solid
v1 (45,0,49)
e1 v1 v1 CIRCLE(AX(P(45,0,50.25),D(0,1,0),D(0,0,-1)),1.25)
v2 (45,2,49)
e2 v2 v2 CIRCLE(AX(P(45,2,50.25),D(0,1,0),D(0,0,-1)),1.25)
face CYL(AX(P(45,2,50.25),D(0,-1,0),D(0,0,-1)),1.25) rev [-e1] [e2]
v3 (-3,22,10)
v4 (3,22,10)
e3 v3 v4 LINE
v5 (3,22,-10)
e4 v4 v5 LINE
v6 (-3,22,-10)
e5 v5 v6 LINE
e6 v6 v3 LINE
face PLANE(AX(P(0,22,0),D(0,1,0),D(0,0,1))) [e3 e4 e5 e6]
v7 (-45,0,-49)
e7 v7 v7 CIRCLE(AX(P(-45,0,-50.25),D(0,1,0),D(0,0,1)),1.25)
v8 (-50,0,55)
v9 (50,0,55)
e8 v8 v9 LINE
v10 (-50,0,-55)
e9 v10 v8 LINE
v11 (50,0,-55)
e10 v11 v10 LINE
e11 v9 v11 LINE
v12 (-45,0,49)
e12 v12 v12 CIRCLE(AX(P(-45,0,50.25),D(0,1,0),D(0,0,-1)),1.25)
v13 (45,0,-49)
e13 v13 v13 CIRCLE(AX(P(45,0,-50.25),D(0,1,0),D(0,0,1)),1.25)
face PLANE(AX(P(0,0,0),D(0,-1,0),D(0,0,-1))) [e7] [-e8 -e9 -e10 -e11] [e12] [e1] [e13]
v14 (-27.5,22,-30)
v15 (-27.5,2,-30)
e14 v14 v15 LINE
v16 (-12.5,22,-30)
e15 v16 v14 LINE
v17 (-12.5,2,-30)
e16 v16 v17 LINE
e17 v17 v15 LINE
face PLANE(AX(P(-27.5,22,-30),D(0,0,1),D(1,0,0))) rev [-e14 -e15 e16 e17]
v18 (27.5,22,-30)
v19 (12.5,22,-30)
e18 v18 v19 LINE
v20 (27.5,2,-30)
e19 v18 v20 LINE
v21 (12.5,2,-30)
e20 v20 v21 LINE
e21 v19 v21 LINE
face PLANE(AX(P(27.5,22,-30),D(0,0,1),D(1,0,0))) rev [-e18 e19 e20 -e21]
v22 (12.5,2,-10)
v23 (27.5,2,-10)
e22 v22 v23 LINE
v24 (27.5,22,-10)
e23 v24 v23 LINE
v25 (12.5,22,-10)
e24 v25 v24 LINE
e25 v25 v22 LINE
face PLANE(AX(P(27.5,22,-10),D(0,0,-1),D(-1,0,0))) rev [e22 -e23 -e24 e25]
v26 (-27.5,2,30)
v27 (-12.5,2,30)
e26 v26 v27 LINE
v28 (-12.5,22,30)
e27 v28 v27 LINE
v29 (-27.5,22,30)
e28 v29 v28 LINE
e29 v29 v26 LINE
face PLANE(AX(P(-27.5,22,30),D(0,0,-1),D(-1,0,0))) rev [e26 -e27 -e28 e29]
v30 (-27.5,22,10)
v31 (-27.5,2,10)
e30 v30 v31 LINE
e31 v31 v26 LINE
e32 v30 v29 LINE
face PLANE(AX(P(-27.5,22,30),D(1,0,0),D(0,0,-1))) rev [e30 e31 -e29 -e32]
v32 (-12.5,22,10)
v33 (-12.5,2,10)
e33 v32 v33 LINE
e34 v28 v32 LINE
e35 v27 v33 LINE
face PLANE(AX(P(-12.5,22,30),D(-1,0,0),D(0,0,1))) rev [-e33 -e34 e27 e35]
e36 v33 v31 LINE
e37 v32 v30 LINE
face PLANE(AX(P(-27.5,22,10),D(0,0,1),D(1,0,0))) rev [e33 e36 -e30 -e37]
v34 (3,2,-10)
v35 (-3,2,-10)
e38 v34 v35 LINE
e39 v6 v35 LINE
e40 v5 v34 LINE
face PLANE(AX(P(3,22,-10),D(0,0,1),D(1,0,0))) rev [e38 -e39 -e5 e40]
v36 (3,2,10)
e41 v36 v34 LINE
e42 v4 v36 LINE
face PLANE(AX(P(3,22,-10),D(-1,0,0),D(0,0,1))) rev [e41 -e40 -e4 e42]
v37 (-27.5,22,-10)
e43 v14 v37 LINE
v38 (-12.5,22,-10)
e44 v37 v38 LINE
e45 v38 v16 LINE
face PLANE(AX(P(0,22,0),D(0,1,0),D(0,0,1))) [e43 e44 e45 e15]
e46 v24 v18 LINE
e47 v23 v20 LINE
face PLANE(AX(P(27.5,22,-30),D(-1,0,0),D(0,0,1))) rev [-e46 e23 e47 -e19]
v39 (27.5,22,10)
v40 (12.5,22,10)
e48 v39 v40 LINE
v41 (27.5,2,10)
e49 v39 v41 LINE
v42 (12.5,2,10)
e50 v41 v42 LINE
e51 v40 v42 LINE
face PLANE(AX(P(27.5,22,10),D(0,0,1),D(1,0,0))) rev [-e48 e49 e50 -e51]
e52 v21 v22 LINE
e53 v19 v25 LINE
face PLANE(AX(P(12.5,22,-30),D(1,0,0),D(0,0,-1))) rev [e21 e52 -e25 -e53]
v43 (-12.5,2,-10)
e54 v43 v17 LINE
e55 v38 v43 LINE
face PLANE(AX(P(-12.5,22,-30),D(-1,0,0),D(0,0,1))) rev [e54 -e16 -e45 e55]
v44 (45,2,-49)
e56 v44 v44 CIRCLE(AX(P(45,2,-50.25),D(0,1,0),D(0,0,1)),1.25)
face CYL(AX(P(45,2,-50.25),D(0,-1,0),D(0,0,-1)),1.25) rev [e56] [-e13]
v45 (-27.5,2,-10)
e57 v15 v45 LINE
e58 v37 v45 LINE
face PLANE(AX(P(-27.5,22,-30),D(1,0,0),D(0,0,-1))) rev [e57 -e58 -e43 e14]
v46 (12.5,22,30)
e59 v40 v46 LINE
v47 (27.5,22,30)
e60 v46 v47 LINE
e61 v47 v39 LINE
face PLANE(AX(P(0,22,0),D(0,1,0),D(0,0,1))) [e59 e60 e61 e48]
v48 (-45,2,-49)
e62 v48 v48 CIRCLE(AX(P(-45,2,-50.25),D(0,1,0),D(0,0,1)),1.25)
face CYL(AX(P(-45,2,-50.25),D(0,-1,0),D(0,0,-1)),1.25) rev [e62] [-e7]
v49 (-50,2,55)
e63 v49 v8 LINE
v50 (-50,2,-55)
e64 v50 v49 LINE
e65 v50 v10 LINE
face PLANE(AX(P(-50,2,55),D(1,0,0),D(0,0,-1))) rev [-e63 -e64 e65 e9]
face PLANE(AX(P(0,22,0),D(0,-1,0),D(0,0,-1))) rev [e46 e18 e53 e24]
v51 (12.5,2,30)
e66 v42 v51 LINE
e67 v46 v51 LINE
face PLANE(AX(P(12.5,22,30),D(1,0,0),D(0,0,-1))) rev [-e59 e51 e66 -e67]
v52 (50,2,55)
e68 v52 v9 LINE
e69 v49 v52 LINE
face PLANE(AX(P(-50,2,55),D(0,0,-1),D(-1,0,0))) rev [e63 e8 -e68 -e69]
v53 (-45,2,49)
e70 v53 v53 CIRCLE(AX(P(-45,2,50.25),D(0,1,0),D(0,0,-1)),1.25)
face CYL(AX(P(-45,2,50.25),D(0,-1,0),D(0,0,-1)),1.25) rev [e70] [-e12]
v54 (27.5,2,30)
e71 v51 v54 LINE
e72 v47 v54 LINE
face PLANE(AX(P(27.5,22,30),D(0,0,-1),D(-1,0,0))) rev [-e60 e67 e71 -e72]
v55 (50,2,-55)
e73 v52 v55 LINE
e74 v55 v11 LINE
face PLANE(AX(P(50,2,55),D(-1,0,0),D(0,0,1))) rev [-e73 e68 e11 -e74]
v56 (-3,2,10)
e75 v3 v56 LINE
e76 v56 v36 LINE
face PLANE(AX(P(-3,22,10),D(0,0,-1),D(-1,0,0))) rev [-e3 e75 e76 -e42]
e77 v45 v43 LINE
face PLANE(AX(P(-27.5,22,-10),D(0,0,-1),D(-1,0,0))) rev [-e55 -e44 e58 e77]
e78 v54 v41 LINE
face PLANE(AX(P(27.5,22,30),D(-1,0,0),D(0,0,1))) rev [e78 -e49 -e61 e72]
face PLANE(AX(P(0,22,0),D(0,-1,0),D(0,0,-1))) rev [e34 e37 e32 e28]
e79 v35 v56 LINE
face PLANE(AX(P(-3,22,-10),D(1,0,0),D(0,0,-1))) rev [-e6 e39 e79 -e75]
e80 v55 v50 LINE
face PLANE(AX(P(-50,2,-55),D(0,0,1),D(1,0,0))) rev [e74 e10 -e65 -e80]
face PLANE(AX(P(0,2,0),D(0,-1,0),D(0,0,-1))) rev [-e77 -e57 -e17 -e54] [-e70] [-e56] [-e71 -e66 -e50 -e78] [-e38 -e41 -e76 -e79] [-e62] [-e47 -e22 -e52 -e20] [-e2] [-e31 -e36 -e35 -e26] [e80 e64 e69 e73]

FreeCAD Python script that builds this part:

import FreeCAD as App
import Part
import Sketcher

doc = App.newDocument("Part")
body = doc.addObject("PartDesign::Body", "Body")

sketch1 = body.newObject("Sketcher::SketchObject", "Sketch")
sketch1.AttachmentSupport = (doc.getObject("XZ_Plane"), [""])
sketch1.MapMode = "FlatFace"
sketch1.addGeometry([
    Part.LineSegment(App.Vector(-50, -55, 0), App.Vector(-50, 55, 0)),
    Part.LineSegment(App.Vector(-50, 55, 0), App.Vector(50, 55, 0)),
    Part.LineSegment(App.Vector(50, 55, 0), App.Vector(50, -55, 0)),
    Part.LineSegment(App.Vector(50, -55, 0), App.Vector(-50, -55, 0)),
    Part.Circle(App.Vector(-45, 50.2, 0), App.Vector(0, 0, 1), 1.2),
    Part.Circle(App.Vector(45, 50.2, 0), App.Vector(0, 0, 1), 1.2),
    Part.Circle(App.Vector(-45, -50.2, 0), App.Vector(0, 0, 1), 1.2),
    Part.Circle(App.Vector(45, -50.2, 0), App.Vector(0, 0, 1), 1.2),
], False)
sketch1.addConstraint([
    Sketcher.Constraint("Coincident", 0, 2, 1, 1),
    Sketcher.Constraint("Coincident", 1, 2, 2, 1),
    Sketcher.Constraint("Coincident", 2, 2, 3, 1),
    Sketcher.Constraint("Coincident", 3, 2, 0, 1),
    Sketcher.Constraint("Vertical", 0),
    Sketcher.Constraint("Horizontal", 1),
    Sketcher.Constraint("Vertical", 2),
    Sketcher.Constraint("Horizontal", 3),
    Sketcher.Constraint("Equal", 4, 5),
    Sketcher.Constraint("Equal", 5, 6),
    Sketcher.Constraint("Equal", 6, 7),
    Sketcher.Constraint("Symmetric", 5, 3, 6, 3, -1, 1),
    Sketcher.Constraint("Symmetric", 4, 3, 7, 3, -1, 1),
    Sketcher.Constraint("Symmetric", 0, 2, 2, 2, -1, 1),
    Sketcher.Constraint("Symmetric", 4, 3, 5, 3, -2),
    Sketcher.Constraint("Diameter", 4, 2.5),
    Sketcher.Constraint("DistanceX", 1, 1, 1, 2, 100.0),
    Sketcher.Constraint("DistanceY", 0, 1, 0, 2, 110.0),
    Sketcher.Constraint("DistanceX", 4, 3, -1, 1, 45.0),
    Sketcher.Constraint("DistanceY", 6, 3, 4, 3, 100.5),
])
pad1 = body.newObject("PartDesign::Pad", "Pad")
pad1.Profile = sketch1
pad1.Length = 2
pad1.Reversed = True

sketch2 = body.newObject("Sketcher::SketchObject", "Sketch001")
sketch2.AttachmentSupport = (doc.getObject("XZ_Plane"), [""])
sketch2.MapMode = "FlatFace"
sketch2.AttachmentOffset = App.Placement(App.Vector(0, 0, -2), App.Rotation())
sketch2.addGeometry([
    Part.LineSegment(App.Vector(-28, 10, 0), App.Vector(-28, 30, 0)),
    Part.LineSegment(App.Vector(-28, 30, 0), App.Vector(-12, 30, 0)),
    Part.LineSegment(App.Vector(-12, 30, 0), App.Vector(-12, 10, 0)),
    Part.LineSegment(App.Vector(-12, 10, 0), App.Vector(-28, 10, 0)),
    Part.LineSegment(App.Vector(-3, -10, 0), App.Vector(-3, 10, 0)),
    Part.LineSegment(App.Vector(-3, 10, 0), App.Vector(3, 10, 0)),
    Part.LineSegment(App.Vector(3, 10, 0), App.Vector(3, -10, 0)),
    Part.LineSegment(App.Vector(3, -10, 0), App.Vector(-3, -10, 0)),
    Part.LineSegment(App.Vector(-28, -30, 0), App.Vector(-28, -10, 0)),
    Part.LineSegment(App.Vector(-28, -10, 0), App.Vector(-12, -10, 0)),
    Part.LineSegment(App.Vector(-12, -10, 0), App.Vector(-12, -30, 0)),
    Part.LineSegment(App.Vector(-12, -30, 0), App.Vector(-28, -30, 0)),
    Part.LineSegment(App.Vector(12, -30, 0), App.Vector(12, -10, 0)),
    Part.LineSegment(App.Vector(12, -10, 0), App.Vector(28, -10, 0)),
    Part.LineSegment(App.Vector(28, -10, 0), App.Vector(28, -30, 0)),
    Part.LineSegment(App.Vector(28, -30, 0), App.Vector(12, -30, 0)),
    Part.LineSegment(App.Vector(12, 10, 0), App.Vector(12, 30, 0)),
    Part.LineSegment(App.Vector(12, 30, 0), App.Vector(28, 30, 0)),
    Part.LineSegment(App.Vector(28, 30, 0), App.Vector(28, 10, 0)),
    Part.LineSegment(App.Vector(28, 10, 0), App.Vector(12, 10, 0)),
], False)
sketch2.addConstraint([
    Sketcher.Constraint("Coincident", 0, 2, 1, 1),
    Sketcher.Constraint("Coincident", 1, 2, 2, 1),
    Sketcher.Constraint("Coincident", 2, 2, 3, 1),
    Sketcher.Constraint("Coincident", 3, 2, 0, 1),
    Sketcher.Constraint("Coincident", 4, 2, 5, 1),
    Sketcher.Constraint("Coincident", 5, 2, 6, 1),
    Sketcher.Constraint("Coincident", 6, 2, 7, 1),
    Sketcher.Constraint("Coincident", 7, 2, 4, 1),
    Sketcher.Constraint("Coincident", 8, 2, 9, 1),
    Sketcher.Constraint("Coincident", 9, 2, 10, 1),
    Sketcher.Constraint("Coincident", 10, 2, 11, 1),
    Sketcher.Constraint("Coincident", 11, 2, 8, 1),
    Sketcher.Constraint("Coincident", 12, 2, 13, 1),
    Sketcher.Constraint("Coincident", 13, 2, 14, 1),
    Sketcher.Constraint("Coincident", 14, 2, 15, 1),
    Sketcher.Constraint("Coincident", 15, 2, 12, 1),
    Sketcher.Constraint("Coincident", 16, 2, 17, 1),
    Sketcher.Constraint("Coincident", 17, 2, 18, 1),
    Sketcher.Constraint("Coincident", 18, 2, 19, 1),
    Sketcher.Constraint("Coincident", 19, 2, 16, 1),
    Sketcher.Constraint("Vertical", 0),
    Sketcher.Constraint("Horizontal", 1),
    Sketcher.Constraint("Vertical", 2),
    Sketcher.Constraint("Horizontal", 3),
    Sketcher.Constraint("Vertical", 4),
    Sketcher.Constraint("Horizontal", 5),
    Sketcher.Constraint("Vertical", 6),
    Sketcher.Constraint("Horizontal", 7),
    Sketcher.Constraint("Vertical", 8),
    Sketcher.Constraint("Horizontal", 9),
    Sketcher.Constraint("Vertical", 10),
    Sketcher.Constraint("Horizontal", 11),
    Sketcher.Constraint("Vertical", 12),
    Sketcher.Constraint("Horizontal", 13),
    Sketcher.Constraint("Vertical", 14),
    Sketcher.Constraint("Horizontal", 15),
    Sketcher.Constraint("Vertical", 16),
    Sketcher.Constraint("Horizontal", 17),
    Sketcher.Constraint("Vertical", 18),
    Sketcher.Constraint("Horizontal", 19),
    Sketcher.Constraint("Symmetric", 4, 2, 6, 2, -1, 1),
    Sketcher.Constraint("Symmetric", 2, 2, 12, 2, -1, 1),
    Sketcher.Constraint("Symmetric", 0, 2, 14, 2, -1, 1),
    Sketcher.Constraint("Symmetric", 10, 2, 16, 2, -1, 1),
    Sketcher.Constraint("Symmetric", 8, 2, 18, 2, -1, 1),
    Sketcher.Constraint("Symmetric", 9, 2, 12, 2, -2),
    Sketcher.Constraint("Symmetric", 11, 2, 14, 2, -2),
    Sketcher.Constraint("Horizontal", 3, 2, 4, 2),
    Sketcher.Constraint("Equal", 2, 4),
    Sketcher.Constraint("DistanceX", 1, 1, 1, 2, 15.0),
    Sketcher.Constraint("DistanceX", 5, 1, 5, 2, 6.0),
    Sketcher.Constraint("DistanceY", 0, 1, 0, 2, 20.0),
    Sketcher.Constraint("DistanceX", 9, 2, 12, 2, 25.0),
])
pad2 = body.newObject("PartDesign::Pad", "Pad001")
pad2.Profile = sketch2
pad2.Length = 20
pad2.Reversed = True

doc.recompute()
